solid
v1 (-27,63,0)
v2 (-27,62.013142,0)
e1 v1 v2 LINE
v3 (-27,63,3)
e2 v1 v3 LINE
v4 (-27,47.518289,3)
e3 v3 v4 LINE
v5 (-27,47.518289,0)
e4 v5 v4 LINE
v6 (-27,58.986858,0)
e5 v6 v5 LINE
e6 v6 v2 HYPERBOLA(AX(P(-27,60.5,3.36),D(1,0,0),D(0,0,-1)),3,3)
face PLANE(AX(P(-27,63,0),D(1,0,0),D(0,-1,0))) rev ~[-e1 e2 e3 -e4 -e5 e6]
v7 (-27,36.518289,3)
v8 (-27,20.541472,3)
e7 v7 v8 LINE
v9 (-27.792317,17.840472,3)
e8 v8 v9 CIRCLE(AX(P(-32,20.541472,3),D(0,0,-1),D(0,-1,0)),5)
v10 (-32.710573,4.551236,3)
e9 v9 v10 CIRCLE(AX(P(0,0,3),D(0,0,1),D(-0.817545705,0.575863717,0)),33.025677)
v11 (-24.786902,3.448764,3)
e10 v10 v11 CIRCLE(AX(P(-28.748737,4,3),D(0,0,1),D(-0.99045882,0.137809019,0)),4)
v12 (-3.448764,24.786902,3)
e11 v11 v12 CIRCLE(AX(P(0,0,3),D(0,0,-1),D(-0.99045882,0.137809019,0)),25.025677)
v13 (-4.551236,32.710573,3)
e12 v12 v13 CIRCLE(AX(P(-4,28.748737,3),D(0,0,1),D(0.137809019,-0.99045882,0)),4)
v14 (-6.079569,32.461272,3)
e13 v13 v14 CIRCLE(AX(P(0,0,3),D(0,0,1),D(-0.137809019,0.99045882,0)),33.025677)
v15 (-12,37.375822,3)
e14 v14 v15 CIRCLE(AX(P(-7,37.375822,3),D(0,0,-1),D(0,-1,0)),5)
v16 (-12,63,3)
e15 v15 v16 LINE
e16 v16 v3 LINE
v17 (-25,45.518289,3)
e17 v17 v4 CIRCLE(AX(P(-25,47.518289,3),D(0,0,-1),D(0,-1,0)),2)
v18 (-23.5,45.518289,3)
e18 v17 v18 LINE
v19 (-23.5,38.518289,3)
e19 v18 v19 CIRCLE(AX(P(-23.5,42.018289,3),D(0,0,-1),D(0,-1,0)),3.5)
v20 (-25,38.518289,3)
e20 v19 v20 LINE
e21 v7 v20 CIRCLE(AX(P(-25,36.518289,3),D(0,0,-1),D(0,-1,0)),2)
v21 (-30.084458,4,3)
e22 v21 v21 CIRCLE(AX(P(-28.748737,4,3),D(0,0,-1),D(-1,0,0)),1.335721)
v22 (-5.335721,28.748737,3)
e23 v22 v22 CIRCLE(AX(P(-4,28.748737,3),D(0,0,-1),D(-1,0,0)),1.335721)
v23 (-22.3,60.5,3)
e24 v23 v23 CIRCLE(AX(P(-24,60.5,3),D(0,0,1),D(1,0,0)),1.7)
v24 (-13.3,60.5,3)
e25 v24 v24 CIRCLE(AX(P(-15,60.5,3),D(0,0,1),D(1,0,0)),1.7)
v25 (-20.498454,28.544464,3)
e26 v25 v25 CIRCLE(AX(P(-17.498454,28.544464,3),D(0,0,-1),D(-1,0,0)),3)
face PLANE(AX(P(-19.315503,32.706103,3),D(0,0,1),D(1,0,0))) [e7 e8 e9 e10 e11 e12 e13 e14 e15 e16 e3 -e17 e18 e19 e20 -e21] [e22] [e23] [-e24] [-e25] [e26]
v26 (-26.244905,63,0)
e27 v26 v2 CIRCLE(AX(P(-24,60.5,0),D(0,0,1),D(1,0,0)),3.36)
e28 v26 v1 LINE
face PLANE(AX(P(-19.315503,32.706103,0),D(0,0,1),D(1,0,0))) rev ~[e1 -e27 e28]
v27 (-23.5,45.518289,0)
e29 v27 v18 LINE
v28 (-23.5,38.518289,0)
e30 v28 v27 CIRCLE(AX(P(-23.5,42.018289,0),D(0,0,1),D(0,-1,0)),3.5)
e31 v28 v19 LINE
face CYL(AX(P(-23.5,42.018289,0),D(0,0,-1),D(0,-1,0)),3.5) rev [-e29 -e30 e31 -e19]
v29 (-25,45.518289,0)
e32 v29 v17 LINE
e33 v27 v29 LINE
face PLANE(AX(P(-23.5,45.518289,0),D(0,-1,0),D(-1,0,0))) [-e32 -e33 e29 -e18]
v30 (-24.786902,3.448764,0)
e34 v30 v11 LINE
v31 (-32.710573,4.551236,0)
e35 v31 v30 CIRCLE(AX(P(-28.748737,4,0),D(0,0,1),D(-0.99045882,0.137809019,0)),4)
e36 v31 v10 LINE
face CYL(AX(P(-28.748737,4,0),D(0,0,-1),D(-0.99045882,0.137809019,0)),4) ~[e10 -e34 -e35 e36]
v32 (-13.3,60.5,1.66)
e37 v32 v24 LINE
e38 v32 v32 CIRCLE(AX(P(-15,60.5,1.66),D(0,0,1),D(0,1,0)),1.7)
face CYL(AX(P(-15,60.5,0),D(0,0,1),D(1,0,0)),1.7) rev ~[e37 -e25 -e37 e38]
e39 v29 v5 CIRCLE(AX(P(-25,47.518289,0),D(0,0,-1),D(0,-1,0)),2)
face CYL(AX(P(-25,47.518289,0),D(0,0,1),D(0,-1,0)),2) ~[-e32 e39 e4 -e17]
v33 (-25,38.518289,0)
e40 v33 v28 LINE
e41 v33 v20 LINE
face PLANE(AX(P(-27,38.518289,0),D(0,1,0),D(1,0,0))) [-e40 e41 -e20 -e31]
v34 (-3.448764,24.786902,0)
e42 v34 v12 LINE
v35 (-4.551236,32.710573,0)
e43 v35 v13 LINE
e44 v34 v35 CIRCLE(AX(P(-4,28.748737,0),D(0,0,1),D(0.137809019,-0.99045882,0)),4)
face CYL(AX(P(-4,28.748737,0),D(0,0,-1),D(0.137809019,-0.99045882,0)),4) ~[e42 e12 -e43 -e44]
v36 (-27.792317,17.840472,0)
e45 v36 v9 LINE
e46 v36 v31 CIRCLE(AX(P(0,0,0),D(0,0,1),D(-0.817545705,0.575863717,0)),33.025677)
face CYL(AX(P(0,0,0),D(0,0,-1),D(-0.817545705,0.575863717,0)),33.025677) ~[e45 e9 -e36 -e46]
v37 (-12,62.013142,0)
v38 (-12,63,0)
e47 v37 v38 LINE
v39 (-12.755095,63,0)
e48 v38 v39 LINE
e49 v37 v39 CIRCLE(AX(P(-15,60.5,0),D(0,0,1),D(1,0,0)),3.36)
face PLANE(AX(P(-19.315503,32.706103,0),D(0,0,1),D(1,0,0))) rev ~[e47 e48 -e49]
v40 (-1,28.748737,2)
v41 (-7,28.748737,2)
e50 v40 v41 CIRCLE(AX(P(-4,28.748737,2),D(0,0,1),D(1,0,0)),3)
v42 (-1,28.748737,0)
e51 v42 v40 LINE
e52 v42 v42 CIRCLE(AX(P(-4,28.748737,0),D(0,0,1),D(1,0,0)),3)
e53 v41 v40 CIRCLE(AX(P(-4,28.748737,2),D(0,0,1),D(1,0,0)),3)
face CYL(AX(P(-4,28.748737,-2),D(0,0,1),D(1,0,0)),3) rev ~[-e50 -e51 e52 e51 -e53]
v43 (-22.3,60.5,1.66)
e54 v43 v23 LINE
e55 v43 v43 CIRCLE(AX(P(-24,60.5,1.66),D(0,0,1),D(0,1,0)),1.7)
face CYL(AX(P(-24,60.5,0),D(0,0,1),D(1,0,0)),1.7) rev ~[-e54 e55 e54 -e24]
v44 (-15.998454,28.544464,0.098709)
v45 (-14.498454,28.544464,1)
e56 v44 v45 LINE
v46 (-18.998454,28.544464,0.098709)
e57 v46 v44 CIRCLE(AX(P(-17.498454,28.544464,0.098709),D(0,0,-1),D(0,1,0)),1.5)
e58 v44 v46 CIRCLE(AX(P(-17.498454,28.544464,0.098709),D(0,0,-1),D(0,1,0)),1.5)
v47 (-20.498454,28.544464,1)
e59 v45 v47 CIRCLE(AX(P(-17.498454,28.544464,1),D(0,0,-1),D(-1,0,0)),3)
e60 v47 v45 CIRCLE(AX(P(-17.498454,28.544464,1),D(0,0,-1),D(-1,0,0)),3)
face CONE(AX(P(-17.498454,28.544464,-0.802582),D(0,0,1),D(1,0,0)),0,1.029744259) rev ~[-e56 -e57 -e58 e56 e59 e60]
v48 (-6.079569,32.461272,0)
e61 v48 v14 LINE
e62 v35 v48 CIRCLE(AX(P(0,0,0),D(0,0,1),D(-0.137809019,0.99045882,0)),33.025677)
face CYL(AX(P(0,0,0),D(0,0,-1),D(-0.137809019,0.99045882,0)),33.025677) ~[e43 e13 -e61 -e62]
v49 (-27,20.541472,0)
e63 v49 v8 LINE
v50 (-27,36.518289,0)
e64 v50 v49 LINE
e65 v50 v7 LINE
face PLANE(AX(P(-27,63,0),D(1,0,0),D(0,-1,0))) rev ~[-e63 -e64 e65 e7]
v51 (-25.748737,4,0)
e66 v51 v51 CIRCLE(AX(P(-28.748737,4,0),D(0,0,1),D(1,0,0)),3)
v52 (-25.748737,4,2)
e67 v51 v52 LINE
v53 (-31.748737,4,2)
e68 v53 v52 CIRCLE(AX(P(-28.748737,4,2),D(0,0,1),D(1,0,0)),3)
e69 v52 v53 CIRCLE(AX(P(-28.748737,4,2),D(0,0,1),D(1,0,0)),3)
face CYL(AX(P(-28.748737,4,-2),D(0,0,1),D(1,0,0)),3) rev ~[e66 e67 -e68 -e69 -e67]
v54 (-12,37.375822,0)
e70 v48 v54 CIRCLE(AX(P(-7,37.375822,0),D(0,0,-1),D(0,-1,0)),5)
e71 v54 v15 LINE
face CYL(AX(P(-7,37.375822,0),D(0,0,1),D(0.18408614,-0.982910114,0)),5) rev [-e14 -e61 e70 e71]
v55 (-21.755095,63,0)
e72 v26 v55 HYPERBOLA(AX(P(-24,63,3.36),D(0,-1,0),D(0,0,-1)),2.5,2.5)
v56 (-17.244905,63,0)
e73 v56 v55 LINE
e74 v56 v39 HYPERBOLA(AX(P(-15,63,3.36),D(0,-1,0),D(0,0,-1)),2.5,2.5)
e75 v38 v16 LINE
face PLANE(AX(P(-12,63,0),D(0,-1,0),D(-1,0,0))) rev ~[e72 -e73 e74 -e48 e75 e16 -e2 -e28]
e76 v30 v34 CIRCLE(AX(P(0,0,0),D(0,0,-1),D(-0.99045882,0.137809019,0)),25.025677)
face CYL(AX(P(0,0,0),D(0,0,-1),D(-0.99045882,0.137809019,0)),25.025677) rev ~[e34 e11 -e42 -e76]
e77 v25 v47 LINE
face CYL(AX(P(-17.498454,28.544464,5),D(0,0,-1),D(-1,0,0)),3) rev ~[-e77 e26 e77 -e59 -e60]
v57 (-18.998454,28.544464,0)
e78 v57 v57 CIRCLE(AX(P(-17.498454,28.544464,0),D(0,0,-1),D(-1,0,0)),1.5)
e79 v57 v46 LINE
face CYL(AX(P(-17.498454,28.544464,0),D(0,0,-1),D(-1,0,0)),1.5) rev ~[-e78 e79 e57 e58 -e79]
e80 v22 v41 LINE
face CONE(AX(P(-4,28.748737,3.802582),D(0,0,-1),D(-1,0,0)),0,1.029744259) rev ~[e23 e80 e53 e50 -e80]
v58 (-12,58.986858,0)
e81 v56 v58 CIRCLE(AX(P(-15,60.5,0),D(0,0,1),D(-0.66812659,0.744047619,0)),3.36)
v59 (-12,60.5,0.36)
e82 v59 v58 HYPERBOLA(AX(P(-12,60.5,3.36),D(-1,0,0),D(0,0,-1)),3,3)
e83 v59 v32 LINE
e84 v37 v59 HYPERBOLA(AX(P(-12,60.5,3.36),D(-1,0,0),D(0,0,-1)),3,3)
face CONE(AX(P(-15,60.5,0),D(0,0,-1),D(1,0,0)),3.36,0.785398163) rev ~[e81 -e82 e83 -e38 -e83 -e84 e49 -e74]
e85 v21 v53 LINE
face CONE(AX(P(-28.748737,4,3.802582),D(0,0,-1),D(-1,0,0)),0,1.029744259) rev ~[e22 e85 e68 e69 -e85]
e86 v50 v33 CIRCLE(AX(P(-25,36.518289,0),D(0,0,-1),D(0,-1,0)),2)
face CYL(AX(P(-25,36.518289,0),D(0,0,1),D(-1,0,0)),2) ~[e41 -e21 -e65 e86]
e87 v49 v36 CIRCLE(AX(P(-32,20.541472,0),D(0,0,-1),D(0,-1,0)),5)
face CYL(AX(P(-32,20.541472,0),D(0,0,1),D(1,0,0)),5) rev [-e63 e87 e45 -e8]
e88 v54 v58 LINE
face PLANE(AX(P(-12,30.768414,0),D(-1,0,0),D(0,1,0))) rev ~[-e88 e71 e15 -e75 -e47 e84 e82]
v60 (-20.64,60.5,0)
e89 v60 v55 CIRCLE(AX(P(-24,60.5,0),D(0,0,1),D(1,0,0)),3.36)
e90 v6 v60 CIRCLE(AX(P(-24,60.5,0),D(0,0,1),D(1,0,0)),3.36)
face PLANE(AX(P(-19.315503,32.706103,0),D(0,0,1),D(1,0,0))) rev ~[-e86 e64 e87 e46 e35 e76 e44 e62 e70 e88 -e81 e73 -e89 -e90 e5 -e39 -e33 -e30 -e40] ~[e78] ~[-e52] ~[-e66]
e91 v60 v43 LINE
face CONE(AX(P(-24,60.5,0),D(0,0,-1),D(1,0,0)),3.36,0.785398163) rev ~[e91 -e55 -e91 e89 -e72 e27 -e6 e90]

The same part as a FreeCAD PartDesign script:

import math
import FreeCAD as App
import Part
import Sketcher

V = App.Vector


def edges_at(feature, points):
    """Names of the edges that pass closest to the given points."""
    edges = feature.Shape.Edges
    near = lambda p: min(range(len(edges)), key=lambda i: edges[i].distToShape(Part.Vertex(*p))[0])
    return sorted({f"Edge{near(p) + 1}" for p in points})

doc = App.newDocument("Part")
body = doc.addObject("PartDesign::Body", "Body")

sketch1 = body.newObject("Sketcher::SketchObject", "Sketch")
sketch1.AttachmentSupport = (doc.getObject("XY_Plane"), [""])
sketch1.MapMode = "FlatFace"
sketch1.addGeometry(Part.LineSegment(V(-12, 30.768414, 0), V(-12, 63, 0)), False)
sketch1.addGeometry(Part.LineSegment(V(-12, 63, 0), V(-27, 63, 0)), False)
sketch1.addGeometry(Part.LineSegment(V(-27, 63, 0), V(-27, 19.018289, 0)), False)
sketch1.addGeometry(Part.ArcOfCircle(Part.Circle(V(0, 0, 0), V(0, 0, 1), 33.025677), math.radians(144.839859), math.radians(172.078917)), False)
sketch1.addGeometry(Part.ArcOfCircle(Part.Circle(V(-28.748737, 4, 0), V(0, 0, 1), 4), math.radians(172.078917), math.radians(352.078917)), False)
sketch1.addGeometry(Part.ArcOfCircle(Part.Circle(V(0, 0, 0), V(0, 0, 1), 25.025677), math.radians(97.921083), math.radians(172.078917)), False)
sketch1.addGeometry(Part.ArcOfCircle(Part.Circle(V(-4, 28.748737, 0), V(0, 0, 1), 4), math.radians(-82.078917), math.radians(97.921083)), False)
sketch1.addGeometry(Part.ArcOfCircle(Part.Circle(V(0, 0, 0), V(0, 0, 1), 33.025677), math.radians(97.921083), math.radians(111.306298)), False)
sketch1.addConstraint(Sketcher.Constraint("Coincident", 0, 2, 1, 1))
sketch1.addConstraint(Sketcher.Constraint("Coincident", 1, 2, 2, 1))
sketch1.addConstraint(Sketcher.Constraint("Coincident", 2, 2, 3, 1))
sketch1.addConstraint(Sketcher.Constraint("Tangent", 3, 2, 4, 1))
sketch1.addConstraint(Sketcher.Constraint("Tangent", 4, 2, 5, 2))
sketch1.addConstraint(Sketcher.Constraint("Tangent", 5, 1, 6, 1))
sketch1.addConstraint(Sketcher.Constraint("Tangent", 6, 2, 7, 1))
sketch1.addConstraint(Sketcher.Constraint("Coincident", 7, 2, 0, 1))
sketch1.addConstraint(Sketcher.Constraint("Vertical", 0))
sketch1.addConstraint(Sketcher.Constraint("Horizontal", 1))
sketch1.addConstraint(Sketcher.Constraint("Vertical", 2))
sketch1.addConstraint(Sketcher.Constraint("Coincident", 3, 3, -1, 1))
sketch1.addConstraint(Sketcher.Constraint("Coincident", 5, 3, -1, 1))
sketch1.addConstraint(Sketcher.Constraint("Coincident", 7, 3, -1, 1))
sketch1.addConstraint(Sketcher.Constraint("Equal", 4, 6))
sketch1.addConstraint(Sketcher.Constraint("Radius", 4, 4.0))
sketch1.addConstraint(Sketcher.Constraint("DistanceX", 1, 2, 1, 1, 15.0))
sketch1.addConstraint(Sketcher.Constraint("DistanceY", -1, 1, 4, 3, 4.0))
sketch1.addConstraint(Sketcher.Constraint("DistanceX", 6, 3, -1, 1, 4.0))
sketch1.addConstraint(Sketcher.Constraint("DistanceX", 0, 2, -1, 1, 12.0))
sketch1.addConstraint(Sketcher.Constraint("DistanceY", -1, 1, 0, 2, 63.0))
sketch1.addConstraint(Sketcher.Constraint("Radius", 3, 33.025677))
pad1 = body.newObject("PartDesign::Pad", "Pad")
pad1.Profile = sketch1
pad1.Length = 3

sketch2 = body.newObject("Sketcher::SketchObject", "Sketch001")
sketch2.AttachmentSupport = (doc.getObject("XY_Plane"), [""])
sketch2.MapMode = "FlatFace"
sketch2.AttachmentOffset = App.Placement(V(0, 0, 3), App.Rotation())
sketch2.addGeometry(Part.Circle(V(-28.748737, 4, 0), V(0, 0, 1), 1.25), False)
sketch2.addGeometry(Part.Circle(V(-4, 28.748737, 0), V(0, 0, 1), 1.25), False)
sketch2.addConstraint(Sketcher.Constraint("Equal", 0, 1))
sketch2.addConstraint(Sketcher.Constraint("Diameter", 0, 2.5))
sketch2.addConstraint(Sketcher.Constraint("DistanceY", -1, 1, 0, 3, 4.0))
sketch2.addConstraint(Sketcher.Constraint("DistanceX", 1, 3, -1, 1, 4.0))
sketch2.addConstraint(Sketcher.Constraint("DistanceX", 0, 3, -1, 1, 28.748737))
sketch2.addConstraint(Sketcher.Constraint("DistanceY", -1, 1, 1, 3, 28.748737))
doc.recompute()
hole = body.newObject("PartDesign::Hole", "Hole")
hole.Profile = sketch2
hole.ThreadType = "None"
hole.Diameter = 2.5
hole.DepthType = "ThroughAll"

sketch3 = body.newObject("Sketcher::SketchObject", "Sketch002")
sketch3.AttachmentSupport = (doc.getObject("XY_Plane"), [""])
sketch3.MapMode = "FlatFace"
sketch3.addGeometry(Part.Circle(V(-28.748737, 4, 0), V(0, 0, 1), 3), False)
sketch3.addGeometry(Part.Circle(V(-4, 28.748737, 0), V(0, 0, 1), 3), False)
sketch3.addConstraint(Sketcher.Constraint("Equal", 0, 1))
sketch3.addConstraint(Sketcher.Constraint("Diameter", 0, 6.0))
sketch3.addConstraint(Sketcher.Constraint("DistanceY", -1, 1, 0, 3, 4.0))
sketch3.addConstraint(Sketcher.Constraint("DistanceX", 1, 3, -1, 1, 4.0))
sketch3.addConstraint(Sketcher.Constraint("DistanceX", 0, 3, -1, 1, 28.748737))
sketch3.addConstraint(Sketcher.Constraint("DistanceY", -1, 1, 1, 3, 28.748737))
doc.recompute()
hole2 = body.newObject("PartDesign::Hole", "Hole001")
hole2.Profile = sketch3
hole2.ThreadType = "None"
hole2.Diameter = 6
hole2.DepthType = "Dimension"
hole2.Depth = 2
hole2.DrillPoint = "Angled"
hole2.DrillPointAngle = 118
hole2.Reversed = True

sketch4 = body.newObject("Sketcher::SketchObject", "Sketch003")
sketch4.AttachmentSupport = (doc.getObject("XY_Plane"), [""])
sketch4.MapMode = "FlatFace"
sketch4.addGeometry(Part.Circle(V(-15, 60.5, 0), V(0, 0, 1), 1.7), False)
sketch4.addGeometry(Part.Circle(V(-24, 60.5, 0), V(0, 0, 1), 1.7), False)
sketch4.addConstraint(Sketcher.Constraint("Equal", 0, 1))
sketch4.addConstraint(Sketcher.Constraint("Horizontal", 0, 3, 1, 3))
sketch4.addConstraint(Sketcher.Constraint("Diameter", 0, 3.4))
sketch4.addConstraint(Sketcher.Constraint("DistanceX", 0, 3, -1, 1, 15.0))
sketch4.addConstraint(Sketcher.Constraint("DistanceX", 1, 3, -1, 1, 24.0))
sketch4.addConstraint(Sketcher.Constraint("DistanceY", -1, 1, 0, 3, 60.5))
doc.recompute()
hole3 = body.newObject("PartDesign::Hole", "Hole002")
hole3.Profile = sketch4
hole3.ThreadType = "None"
hole3.Diameter = 3.4
hole3.DepthType = "Dimension"
hole3.Depth = 10
hole3.DrillPoint = "Angled"
hole3.DrillPointAngle = 118
hole3.HoleCutType = "Countersink"
hole3.HoleCutDiameter = 6.72
hole3.HoleCutCountersinkAngle = 90
hole3.Reversed = True

sketch5 = body.newObject("Sketcher::SketchObject", "Sketch004")
sketch5.AttachmentSupport = (doc.getObject("XY_Plane"), [""])
sketch5.MapMode = "FlatFace"
sketch5.addGeometry(Part.Circle(V(-17.498454, 28.544464, 0), V(0, 0, 1), 1.5), False)
sketch5.addGeometry(Part.LineSegment(V(-27, 45.518289, 0), V(-23.5, 45.518289, 0)), False)
sketch5.addGeometry(Part.ArcOfCircle(Part.Circle(V(-23.5, 42.018289, 0), V(0, 0, 1), 3.5), math.radians(-90), math.radians(90)), False)
sketch5.addGeometry(Part.LineSegment(V(-23.5, 38.518289, 0), V(-27, 38.518289, 0)), False)
sketch5.addGeometry(Part.LineSegment(V(-27, 38.518289, 0), V(-27, 45.518289, 0)), False)
sketch5.addConstraint(Sketcher.Constraint("Tangent", 1, 2, 2, 2))
sketch5.addConstraint(Sketcher.Constraint("Tangent", 2, 1, 3, 1))
sketch5.addConstraint(Sketcher.Constraint("Coincident", 3, 2, 4, 1))
sketch5.addConstraint(Sketcher.Constraint("Coincident", 4, 2, 1, 1))
sketch5.addConstraint(Sketcher.Constraint("Horizontal", 1))
sketch5.addConstraint(Sketcher.Constraint("Horizontal", 3))
sketch5.addConstraint(Sketcher.Constraint("Vertical", 4))
sketch5.addConstraint(Sketcher.Constraint("Diameter", 0, 3.0))
sketch5.addConstraint(Sketcher.Constraint("Radius", 2, 3.5))
sketch5.addConstraint(Sketcher.Constraint("DistanceX", 1, 1, 1, 2, 3.5))
sketch5.addConstraint(Sketcher.Constraint("DistanceX", 3, 2, -1, 1, 27.0))
sketch5.addConstraint(Sketcher.Constraint("DistanceY", -1, 1, 2, 3, 42.018289))
sketch5.addConstraint(Sketcher.Constraint("DistanceX", 0, 3, -1, 1, 17.498454))
sketch5.addConstraint(Sketcher.Constraint("DistanceY", -1, 1, 0, 3, 28.544464))
pocket1 = body.newObject("PartDesign::Pocket", "Pocket")
pocket1.Profile = sketch5
pocket1.Type = "ThroughAll"
pocket1.Reversed = True
doc.recompute()

fillet = body.newObject("PartDesign::Fillet", "Fillet")
fillet.Base = (pocket1, edges_at(pocket1, [(-27, 45.518, 1.5), (-27, 38.518, 1.5)]))
fillet.Radius = 2
doc.recompute()

fillet2 = body.newObject("PartDesign::Fillet", "Fillet001")
fillet2.Base = (fillet, edges_at(fillet, [(-27, 19.018, 1.5), (-12, 30.768, 1.5)]))
fillet2.Radius = 5

sketch6 = body.newObject("Sketcher::SketchObject", "Sketch005")
sketch6.AttachmentSupport = (doc.getObject("XY_Plane"), [""])
sketch6.MapMode = "FlatFace"
sketch6.AttachmentOffset = App.Placement(V(0, 0, 3), App.Rotation())
sketch6.addGeometry(Part.Circle(V(-17.498454, 28.544464, 0), V(0, 0, 1), 3), False)
sketch6.addConstraint(Sketcher.Constraint("Diameter", 0, 6.0))
sketch6.addConstraint(Sketcher.Constraint("DistanceX", 0, 3, -1, 1, 17.498454))
sketch6.addConstraint(Sketcher.Constraint("DistanceY", -1, 1, 0, 3, 28.544464))
doc.recompute()
hole4 = body.newObject("PartDesign::Hole", "Hole003")
hole4.Profile = sketch6
hole4.ThreadType = "None"
hole4.Diameter = 6
hole4.DepthType = "Dimension"
hole4.Depth = 2
hole4.DrillPoint = "Angled"
hole4.DrillPointAngle = 118

doc.recompute()
